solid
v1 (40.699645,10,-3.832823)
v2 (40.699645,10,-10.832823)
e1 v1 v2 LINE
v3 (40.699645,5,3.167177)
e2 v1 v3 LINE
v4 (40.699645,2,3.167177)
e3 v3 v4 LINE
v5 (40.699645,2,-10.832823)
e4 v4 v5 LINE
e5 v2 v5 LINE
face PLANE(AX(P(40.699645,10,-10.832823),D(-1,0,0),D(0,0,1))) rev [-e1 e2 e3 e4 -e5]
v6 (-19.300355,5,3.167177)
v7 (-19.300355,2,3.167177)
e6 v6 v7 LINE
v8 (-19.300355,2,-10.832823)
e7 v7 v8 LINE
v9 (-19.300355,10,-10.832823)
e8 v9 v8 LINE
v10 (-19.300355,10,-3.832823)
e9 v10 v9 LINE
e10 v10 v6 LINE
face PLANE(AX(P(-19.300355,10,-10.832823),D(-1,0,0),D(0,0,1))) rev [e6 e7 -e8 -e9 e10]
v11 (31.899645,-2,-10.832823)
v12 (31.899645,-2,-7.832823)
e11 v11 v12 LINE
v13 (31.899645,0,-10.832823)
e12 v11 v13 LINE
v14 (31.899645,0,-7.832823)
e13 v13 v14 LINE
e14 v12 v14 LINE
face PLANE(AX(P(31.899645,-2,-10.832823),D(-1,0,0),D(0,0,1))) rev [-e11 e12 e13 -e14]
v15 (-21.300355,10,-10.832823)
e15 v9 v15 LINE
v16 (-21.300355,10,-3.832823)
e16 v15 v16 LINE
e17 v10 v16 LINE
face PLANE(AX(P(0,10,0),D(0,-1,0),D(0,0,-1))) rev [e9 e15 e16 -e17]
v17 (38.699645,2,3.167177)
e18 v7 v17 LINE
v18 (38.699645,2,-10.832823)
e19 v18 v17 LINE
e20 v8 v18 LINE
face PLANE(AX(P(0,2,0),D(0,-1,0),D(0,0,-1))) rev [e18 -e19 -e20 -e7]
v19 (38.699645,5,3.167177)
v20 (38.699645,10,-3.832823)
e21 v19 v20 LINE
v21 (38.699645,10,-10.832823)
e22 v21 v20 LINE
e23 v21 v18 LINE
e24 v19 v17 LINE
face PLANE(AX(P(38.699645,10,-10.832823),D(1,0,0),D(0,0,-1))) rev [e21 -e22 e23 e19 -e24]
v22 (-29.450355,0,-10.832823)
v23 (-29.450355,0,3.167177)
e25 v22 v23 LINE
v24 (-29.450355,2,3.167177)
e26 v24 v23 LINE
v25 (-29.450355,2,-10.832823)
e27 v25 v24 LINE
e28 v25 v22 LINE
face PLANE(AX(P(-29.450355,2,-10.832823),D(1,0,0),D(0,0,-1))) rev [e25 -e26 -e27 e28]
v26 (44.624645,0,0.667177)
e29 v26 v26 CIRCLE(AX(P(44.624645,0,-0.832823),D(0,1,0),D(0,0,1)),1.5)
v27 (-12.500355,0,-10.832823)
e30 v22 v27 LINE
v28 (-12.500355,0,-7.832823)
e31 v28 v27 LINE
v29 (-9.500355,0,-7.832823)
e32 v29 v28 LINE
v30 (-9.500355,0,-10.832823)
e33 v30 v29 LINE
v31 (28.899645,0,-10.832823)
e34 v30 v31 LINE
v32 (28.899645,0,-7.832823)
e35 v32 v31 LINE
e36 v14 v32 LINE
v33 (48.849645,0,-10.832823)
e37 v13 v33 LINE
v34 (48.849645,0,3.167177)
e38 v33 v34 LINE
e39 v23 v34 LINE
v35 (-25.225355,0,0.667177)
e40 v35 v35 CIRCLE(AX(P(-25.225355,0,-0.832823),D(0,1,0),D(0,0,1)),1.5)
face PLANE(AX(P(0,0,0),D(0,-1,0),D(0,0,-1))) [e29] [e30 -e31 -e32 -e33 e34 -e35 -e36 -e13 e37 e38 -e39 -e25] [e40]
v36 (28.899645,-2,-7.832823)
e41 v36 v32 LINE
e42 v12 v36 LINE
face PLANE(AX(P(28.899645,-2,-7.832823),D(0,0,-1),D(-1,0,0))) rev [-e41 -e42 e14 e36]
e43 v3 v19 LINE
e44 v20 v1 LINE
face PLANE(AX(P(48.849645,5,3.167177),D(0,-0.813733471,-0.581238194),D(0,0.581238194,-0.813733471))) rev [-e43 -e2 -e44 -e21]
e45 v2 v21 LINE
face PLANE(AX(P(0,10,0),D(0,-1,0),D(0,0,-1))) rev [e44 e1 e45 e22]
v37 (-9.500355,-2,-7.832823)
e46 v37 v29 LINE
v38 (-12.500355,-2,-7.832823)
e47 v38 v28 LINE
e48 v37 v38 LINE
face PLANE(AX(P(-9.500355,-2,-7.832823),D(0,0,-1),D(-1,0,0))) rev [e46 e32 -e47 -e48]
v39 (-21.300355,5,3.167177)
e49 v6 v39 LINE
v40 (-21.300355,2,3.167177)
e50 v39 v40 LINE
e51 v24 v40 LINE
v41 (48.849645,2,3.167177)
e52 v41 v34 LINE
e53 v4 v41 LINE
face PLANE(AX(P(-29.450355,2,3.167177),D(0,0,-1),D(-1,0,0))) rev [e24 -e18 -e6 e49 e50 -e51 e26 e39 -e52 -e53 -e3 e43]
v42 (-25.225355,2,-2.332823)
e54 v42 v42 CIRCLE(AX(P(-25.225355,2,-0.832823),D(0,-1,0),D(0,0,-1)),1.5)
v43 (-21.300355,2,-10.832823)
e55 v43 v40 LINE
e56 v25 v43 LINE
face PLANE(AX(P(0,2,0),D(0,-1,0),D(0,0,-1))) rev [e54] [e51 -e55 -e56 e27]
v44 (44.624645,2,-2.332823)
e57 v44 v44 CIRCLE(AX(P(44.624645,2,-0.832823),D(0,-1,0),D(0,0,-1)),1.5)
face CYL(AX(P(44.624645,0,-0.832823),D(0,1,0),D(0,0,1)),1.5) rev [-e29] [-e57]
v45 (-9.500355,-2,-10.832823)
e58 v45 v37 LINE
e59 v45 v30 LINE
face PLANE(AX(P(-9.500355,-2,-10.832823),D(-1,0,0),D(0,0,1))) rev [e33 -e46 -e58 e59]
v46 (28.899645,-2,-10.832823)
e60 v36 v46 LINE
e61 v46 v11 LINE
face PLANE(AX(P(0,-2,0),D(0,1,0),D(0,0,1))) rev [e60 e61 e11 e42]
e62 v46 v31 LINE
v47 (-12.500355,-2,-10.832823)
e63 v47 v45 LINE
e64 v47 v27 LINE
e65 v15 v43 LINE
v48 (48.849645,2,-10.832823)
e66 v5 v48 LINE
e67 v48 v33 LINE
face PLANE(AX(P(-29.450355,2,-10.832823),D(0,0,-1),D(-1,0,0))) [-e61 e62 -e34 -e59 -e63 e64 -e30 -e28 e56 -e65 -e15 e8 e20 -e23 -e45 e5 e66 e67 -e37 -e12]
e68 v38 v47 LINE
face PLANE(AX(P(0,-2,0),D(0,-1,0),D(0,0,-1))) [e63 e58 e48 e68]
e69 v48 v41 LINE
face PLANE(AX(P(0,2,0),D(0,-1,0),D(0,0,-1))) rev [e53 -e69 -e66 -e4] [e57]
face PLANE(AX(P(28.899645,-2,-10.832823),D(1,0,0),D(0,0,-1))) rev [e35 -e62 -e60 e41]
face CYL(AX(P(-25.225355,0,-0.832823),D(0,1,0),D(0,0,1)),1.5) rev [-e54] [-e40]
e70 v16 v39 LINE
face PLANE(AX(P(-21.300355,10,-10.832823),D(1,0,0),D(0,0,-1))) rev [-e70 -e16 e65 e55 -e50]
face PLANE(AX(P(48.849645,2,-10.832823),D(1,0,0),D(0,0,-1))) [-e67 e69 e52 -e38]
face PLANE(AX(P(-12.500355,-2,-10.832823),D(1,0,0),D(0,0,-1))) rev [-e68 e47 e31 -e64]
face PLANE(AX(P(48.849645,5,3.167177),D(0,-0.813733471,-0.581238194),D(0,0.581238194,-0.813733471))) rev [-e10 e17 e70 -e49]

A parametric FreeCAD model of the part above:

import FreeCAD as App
import Part
import Sketcher
Q = App.Units.Quantity


def add_polygon(sketch, points):
    """Adds a closed chain of lines whose ends are joined by coincident constraints."""
    first, n = sketch.GeometryCount, len(points)
    for a, b in zip(points, points[1:] + points[:1]):
        sketch.addGeometry(Part.LineSegment(App.Vector(*a, 0), App.Vector(*b, 0)), False)
    for i in range(n):
        sketch.addConstraint(Sketcher.Constraint("Coincident", first + i, 2, first + (i + 1) % n, 1))

doc = App.newDocument("Part")
body = doc.addObject("PartDesign::Body", "Body")

sketch1 = doc.addObject("Sketcher::SketchObject", "Sketch")
body.addObject(sketch1)
sketch1.AttachmentSupport = (doc.XZ_Plane, [""])
sketch1.MapMode = "FlatFace"
add_polygon(sketch1, [(-29, -11), (-29, 3), (49, 3), (49, -11)])
sketch1.addConstraint([
    Sketcher.Constraint("Vertical", 0),
    Sketcher.Constraint("Horizontal", 1),
    Sketcher.Constraint("Vertical", 2),
    Sketcher.Constraint("Horizontal", 3),
    Sketcher.Constraint("DistanceY", 0, 1, 0, 2, Q("14 mm")),
    Sketcher.Constraint("DistanceX", 1, 1, 1, 2, Q("78.3 mm")),
    Sketcher.Constraint("DistanceX", 0, 2, -1, 1, Q("29.450355 mm")),
    Sketcher.Constraint("DistanceY", -1, 1, 0, 2, Q("3.167177 mm")),
])
pad1 = doc.addObject("PartDesign::Pad", "Pad")
body.addObject(pad1)
pad1.Profile = sketch1
pad1.Length = 2
pad1.Reversed = True

sketch2 = doc.addObject("Sketcher::SketchObject", "Sketch001")
body.addObject(sketch2)
sketch2.AttachmentSupport = (doc.XZ_Plane, [""])
sketch2.MapMode = "FlatFace"
sketch2.AttachmentOffset = App.Placement(App.Vector(0, 0, -2), App.Rotation())
sketch2.addGeometry([
    Part.Circle(App.Vector(-25.2, -0.8, 0), App.Vector(0, 0, 1), 1.5),
    Part.Circle(App.Vector(44.6, -0.8, 0), App.Vector(0, 0, 1), 1.5),
], False)
sketch2.addConstraint([
    Sketcher.Constraint("Equal", 0, 1),
    Sketcher.Constraint("Horizontal", 0, 3, 1, 3),
    Sketcher.Constraint("Diameter", 0, Q("3 mm")),
    Sketcher.Constraint("DistanceX", 0, 3, 1, 3, Q("69.85 mm")),
    Sketcher.Constraint("DistanceX", 0, 3, -1, 1, Q("25.225355 mm")),
    Sketcher.Constraint("DistanceY", 0, 3, -1, 1, Q("0.832823 mm")),
])
pocket1 = doc.addObject("PartDesign::Pocket", "Pocket")
body.addObject(pocket1)
pocket1.Profile = sketch2
pocket1.Type = "ThroughAll"
pocket1.Midplane = True

sketch3 = doc.addObject("Sketcher::SketchObject", "Sketch002")
body.addObject(sketch3)
sketch3.AttachmentSupport = (doc.XZ_Plane, [""])
sketch3.MapMode = "FlatFace"
add_polygon(sketch3, [(-12.5, -7.8), (-12.5, -10.8), (-9.5, -10.8), (-9.5, -7.8)])
add_polygon(sketch3, [(28.9, -7.8), (28.9, -10.8), (31.9, -10.8), (31.9, -7.8)])
sketch3.addConstraint([
    Sketcher.Constraint("Vertical", 0),
    Sketcher.Constraint("Horizontal", 1),
    Sketcher.Constraint("Vertical", 2),
    Sketcher.Constraint("Horizontal", 3),
    Sketcher.Constraint("Vertical", 4),
    Sketcher.Constraint("Horizontal", 5),
    Sketcher.Constraint("Vertical", 6),
    Sketcher.Constraint("Horizontal", 7),
    Sketcher.Constraint("Horizontal", 1, 2, 4, 2),
    Sketcher.Constraint("Horizontal", 3, 2, 6, 2),
    Sketcher.Constraint("Equal", 3, 5),
    Sketcher.Constraint("Equal", 7, 0),
    Sketcher.Constraint("DistanceX", 1, 1, 1, 2, Q("3 mm")),
    Sketcher.Constraint("DistanceX", 1, 2, 4, 2, Q("38.4 mm")),
    Sketcher.Constraint("DistanceX", 0, 2, -1, 1, Q("12.500355 mm")),
    Sketcher.Constraint("DistanceY", 0, 2, -1, 1, Q("10.832823 mm")),
])
pad2 = doc.addObject("PartDesign::Pad", "Pad001")
body.addObject(pad2)
pad2.Profile = sketch3
pad2.Length = 2

sketch4 = doc.addObject("Sketcher::SketchObject", "Sketch003")
body.addObject(sketch4)
sketch4.AttachmentSupport = (doc.XZ_Plane, [""])
sketch4.MapMode = "FlatFace"
sketch4.AttachmentOffset = App.Placement(App.Vector(0, 0, -2), App.Rotation())
add_polygon(sketch4, [(38.7, -10.8), (38.7, 3.2), (40.7, 3.2), (40.7, -10.8)])
add_polygon(sketch4, [(-21.3, -10.8), (-21.3, 3.2), (-19.3, 3.2), (-19.3, -10.8)])
sketch4.addConstraint([
    Sketcher.Constraint("Vertical", 0),
    Sketcher.Constraint("Horizontal", 1),
    Sketcher.Constraint("Vertical", 2),
    Sketcher.Constraint("Horizontal", 3),
    Sketcher.Constraint("Vertical", 4),
    Sketcher.Constraint("Horizontal", 5),
    Sketcher.Constraint("Vertical", 6),
    Sketcher.Constraint("Horizontal", 7),
    Sketcher.Constraint("Horizontal", 1, 2, 4, 2),
    Sketcher.Constraint("Horizontal", 3, 2, 6, 2),
    Sketcher.Constraint("Equal", 3, 5),
    Sketcher.Constraint("DistanceX", 1, 1, 1, 2, Q("2 mm")),
    Sketcher.Constraint("DistanceY", 0, 1, 0, 2, Q("14 mm")),
    Sketcher.Constraint("DistanceX", 4, 2, 0, 2, Q("60 mm")),
    Sketcher.Constraint("DistanceX", -1, 1, 0, 2, Q("38.699645 mm")),
    Sketcher.Constraint("DistanceY", -1, 1, 0, 2, Q("3.167177 mm")),
])
pad3 = doc.addObject("PartDesign::Pad", "Pad002")
body.addObject(pad3)
pad3.Profile = sketch4
pad3.Length = 8
pad3.Reversed = True

sketch5 = doc.addObject("Sketcher::SketchObject", "Sketch004")
body.addObject(sketch5)
sketch5.AttachmentSupport = (doc.YZ_Plane, [""])
sketch5.MapMode = "FlatFace"
sketch5.AttachmentOffset = App.Placement(App.Vector(0, 0, -21.300355), App.Rotation())
add_polygon(sketch5, [(5, 3), (10, 3), (10, -4)])
sketch5.addConstraint([
    Sketcher.Constraint("Horizontal", 0),
    Sketcher.Constraint("Vertical", 1),
    Sketcher.Constraint("DistanceX", 0, 1, 0, 2, Q("5 mm")),
    Sketcher.Constraint("DistanceY", 1, 2, 1, 1, Q("7 mm")),
    Sketcher.Constraint("DistanceX", -1, 1, 0, 2, Q("10 mm")),
    Sketcher.Constraint("DistanceY", -1, 1, 0, 2, Q("3.167177 mm")),
])
pocket2 = doc.addObject("PartDesign::Pocket", "Pocket001")
body.addObject(pocket2)
pocket2.Profile = sketch5
pocket2.Type = "ThroughAll"
pocket2.Midplane = True

doc.recompute()
